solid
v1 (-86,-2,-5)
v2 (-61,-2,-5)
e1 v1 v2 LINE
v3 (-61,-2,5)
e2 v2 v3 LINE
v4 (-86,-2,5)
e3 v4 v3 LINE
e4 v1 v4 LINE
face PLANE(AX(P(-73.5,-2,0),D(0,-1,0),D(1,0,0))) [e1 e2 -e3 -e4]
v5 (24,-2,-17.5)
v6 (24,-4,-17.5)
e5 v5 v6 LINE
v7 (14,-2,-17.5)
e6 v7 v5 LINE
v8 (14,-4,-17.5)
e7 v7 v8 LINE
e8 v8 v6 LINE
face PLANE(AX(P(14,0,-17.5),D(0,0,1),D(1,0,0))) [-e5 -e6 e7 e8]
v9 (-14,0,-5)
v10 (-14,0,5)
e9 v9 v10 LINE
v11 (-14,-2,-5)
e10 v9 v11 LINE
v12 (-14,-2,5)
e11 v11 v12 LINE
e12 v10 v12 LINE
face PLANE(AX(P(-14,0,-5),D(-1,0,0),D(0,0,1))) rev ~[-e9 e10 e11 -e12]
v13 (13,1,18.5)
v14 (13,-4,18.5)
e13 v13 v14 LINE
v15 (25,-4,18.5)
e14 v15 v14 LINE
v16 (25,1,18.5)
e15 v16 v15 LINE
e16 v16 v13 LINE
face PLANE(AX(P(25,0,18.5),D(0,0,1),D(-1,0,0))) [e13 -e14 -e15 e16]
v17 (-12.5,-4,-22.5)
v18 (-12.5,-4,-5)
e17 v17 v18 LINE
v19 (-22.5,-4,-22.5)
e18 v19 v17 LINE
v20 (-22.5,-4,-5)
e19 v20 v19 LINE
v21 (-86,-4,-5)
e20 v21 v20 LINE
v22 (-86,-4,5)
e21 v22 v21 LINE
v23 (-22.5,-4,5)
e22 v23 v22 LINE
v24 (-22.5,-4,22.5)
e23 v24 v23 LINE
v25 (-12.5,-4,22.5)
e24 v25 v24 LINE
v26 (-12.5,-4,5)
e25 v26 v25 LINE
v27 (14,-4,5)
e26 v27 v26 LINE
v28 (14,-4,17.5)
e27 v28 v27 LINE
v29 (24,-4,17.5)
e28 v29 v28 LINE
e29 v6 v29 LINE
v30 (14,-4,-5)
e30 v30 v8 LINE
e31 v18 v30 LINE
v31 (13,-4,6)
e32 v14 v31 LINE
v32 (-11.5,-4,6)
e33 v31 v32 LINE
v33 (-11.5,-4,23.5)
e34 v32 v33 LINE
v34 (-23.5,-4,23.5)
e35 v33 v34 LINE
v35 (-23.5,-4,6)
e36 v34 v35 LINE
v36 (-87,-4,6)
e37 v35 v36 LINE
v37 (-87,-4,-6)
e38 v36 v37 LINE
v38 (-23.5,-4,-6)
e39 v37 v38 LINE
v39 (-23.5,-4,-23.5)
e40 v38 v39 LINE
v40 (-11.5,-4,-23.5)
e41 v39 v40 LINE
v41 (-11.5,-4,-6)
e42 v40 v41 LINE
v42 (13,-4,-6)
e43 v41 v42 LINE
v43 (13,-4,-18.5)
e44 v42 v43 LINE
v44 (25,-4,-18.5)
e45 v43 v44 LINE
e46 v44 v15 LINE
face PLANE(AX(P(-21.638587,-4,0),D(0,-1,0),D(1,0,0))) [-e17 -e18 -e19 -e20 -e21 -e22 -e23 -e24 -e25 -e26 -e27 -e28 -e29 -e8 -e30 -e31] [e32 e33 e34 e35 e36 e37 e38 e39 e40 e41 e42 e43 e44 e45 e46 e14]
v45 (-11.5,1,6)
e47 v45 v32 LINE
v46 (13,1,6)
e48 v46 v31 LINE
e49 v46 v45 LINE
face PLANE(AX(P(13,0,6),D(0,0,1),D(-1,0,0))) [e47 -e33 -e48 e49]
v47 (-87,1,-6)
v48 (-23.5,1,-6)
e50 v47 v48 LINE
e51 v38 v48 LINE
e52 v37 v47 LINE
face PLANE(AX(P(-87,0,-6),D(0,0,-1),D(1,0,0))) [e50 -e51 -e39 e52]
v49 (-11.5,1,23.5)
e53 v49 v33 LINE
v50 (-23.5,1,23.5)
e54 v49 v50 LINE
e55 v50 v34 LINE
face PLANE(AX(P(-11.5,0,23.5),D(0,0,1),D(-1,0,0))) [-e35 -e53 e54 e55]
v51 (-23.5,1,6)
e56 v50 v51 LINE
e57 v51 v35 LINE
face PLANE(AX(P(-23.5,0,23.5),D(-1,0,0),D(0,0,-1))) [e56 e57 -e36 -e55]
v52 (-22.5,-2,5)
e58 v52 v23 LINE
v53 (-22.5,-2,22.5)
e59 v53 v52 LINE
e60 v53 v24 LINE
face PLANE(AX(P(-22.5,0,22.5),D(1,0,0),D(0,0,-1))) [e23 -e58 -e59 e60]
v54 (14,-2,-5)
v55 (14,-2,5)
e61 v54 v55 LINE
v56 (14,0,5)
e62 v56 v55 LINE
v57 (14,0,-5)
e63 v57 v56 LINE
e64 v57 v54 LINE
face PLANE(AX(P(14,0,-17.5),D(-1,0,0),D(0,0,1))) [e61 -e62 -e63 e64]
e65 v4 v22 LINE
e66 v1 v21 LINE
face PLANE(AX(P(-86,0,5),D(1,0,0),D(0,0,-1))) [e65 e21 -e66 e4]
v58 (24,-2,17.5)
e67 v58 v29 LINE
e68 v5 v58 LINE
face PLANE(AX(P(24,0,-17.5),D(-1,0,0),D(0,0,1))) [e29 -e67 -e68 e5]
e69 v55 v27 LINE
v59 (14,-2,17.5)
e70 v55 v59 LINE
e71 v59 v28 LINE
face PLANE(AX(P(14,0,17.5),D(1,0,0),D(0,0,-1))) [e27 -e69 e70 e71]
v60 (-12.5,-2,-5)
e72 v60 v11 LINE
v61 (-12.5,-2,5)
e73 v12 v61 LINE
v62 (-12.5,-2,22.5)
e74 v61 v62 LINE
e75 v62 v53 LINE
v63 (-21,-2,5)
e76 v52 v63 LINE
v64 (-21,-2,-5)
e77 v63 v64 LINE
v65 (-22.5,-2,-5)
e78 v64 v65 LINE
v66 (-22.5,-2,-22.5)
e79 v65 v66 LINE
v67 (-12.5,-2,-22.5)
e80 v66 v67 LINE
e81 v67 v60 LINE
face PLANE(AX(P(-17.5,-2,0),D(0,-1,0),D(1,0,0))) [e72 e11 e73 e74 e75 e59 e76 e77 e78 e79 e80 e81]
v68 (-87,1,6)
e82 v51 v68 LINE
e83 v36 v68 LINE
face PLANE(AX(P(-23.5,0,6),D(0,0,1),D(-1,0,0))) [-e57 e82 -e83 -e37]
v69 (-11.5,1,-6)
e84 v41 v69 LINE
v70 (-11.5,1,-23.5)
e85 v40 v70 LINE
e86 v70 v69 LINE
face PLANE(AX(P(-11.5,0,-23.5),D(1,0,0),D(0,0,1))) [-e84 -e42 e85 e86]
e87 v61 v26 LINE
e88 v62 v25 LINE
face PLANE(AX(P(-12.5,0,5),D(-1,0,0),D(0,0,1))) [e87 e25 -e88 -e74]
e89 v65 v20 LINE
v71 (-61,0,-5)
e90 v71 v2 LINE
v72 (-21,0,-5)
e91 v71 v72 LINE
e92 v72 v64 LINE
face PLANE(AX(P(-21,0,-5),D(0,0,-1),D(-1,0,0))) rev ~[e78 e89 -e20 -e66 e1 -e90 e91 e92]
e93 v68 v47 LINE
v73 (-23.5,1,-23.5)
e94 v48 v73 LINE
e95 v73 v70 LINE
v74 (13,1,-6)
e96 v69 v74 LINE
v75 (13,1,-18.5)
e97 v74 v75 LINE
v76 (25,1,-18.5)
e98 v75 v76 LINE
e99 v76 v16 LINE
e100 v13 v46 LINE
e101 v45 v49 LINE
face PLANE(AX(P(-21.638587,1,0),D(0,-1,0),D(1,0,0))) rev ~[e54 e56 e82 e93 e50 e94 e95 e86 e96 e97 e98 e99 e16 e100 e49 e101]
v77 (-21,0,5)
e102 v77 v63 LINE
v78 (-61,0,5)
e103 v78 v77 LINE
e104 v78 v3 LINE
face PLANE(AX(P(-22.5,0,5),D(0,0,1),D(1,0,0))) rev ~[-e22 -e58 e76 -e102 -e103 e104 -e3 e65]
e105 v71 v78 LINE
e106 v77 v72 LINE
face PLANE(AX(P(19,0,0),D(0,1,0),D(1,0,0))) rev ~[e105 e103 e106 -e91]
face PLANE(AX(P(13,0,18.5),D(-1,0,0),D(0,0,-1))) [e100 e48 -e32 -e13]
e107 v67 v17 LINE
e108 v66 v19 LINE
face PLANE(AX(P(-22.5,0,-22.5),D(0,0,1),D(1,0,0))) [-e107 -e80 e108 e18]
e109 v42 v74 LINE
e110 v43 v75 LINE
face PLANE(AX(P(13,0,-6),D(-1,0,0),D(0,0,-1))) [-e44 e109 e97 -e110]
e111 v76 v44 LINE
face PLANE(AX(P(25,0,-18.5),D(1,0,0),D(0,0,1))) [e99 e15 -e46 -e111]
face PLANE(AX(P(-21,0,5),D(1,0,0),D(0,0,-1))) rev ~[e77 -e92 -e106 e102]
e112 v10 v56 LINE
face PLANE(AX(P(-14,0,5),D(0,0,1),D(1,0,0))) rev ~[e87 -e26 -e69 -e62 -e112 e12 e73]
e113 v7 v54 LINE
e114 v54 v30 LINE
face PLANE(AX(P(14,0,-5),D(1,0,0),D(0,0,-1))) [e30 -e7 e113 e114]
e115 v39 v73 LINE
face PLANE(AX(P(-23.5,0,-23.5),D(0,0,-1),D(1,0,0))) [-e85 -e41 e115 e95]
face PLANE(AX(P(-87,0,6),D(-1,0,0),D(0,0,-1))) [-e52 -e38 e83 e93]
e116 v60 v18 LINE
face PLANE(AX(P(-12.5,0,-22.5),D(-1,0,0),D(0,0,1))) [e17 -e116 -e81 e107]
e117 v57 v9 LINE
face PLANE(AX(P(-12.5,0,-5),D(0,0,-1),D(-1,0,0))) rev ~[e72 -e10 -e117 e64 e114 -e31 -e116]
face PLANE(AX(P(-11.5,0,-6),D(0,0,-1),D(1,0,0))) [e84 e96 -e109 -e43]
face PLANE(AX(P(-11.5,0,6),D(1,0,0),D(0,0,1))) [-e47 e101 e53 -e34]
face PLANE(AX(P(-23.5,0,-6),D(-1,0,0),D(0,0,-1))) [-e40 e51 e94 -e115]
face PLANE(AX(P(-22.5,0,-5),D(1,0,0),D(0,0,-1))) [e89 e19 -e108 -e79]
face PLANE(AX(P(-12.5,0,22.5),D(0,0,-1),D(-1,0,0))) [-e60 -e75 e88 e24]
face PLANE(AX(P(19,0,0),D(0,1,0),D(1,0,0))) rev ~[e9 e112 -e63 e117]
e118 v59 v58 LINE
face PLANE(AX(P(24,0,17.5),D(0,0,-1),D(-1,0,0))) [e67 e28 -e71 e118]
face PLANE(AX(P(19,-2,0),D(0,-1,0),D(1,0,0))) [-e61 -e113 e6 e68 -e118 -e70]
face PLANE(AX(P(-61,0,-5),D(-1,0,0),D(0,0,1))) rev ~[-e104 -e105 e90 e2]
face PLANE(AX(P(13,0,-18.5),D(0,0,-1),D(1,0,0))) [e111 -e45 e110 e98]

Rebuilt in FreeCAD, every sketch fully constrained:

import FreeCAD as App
import Part
import Sketcher
from FreeCAD import Vector


def add_polygon(sketch, points):
    """Adds a closed chain of lines whose ends are joined by coincident constraints."""
    first, n = sketch.GeometryCount, len(points)
    for a, b in zip(points, points[1:] + points[:1]):
        sketch.addGeometry(Part.LineSegment(App.Vector(*a, 0), App.Vector(*b, 0)), False)
    for i in range(n):
        sketch.addConstraint(Sketcher.Constraint("Coincident", first + i, 2, first + (i + 1) % n, 1))

doc = App.newDocument("Part")
params = doc.addObject("Spreadsheet::Sheet", "Params")
for row, (alias, value) in enumerate([
    ("sketch1_width", "10 mm"),
    ("sketch1_height", "35 mm"),
    ("sketch1_width2", "26.5 mm"),
    ("sketch1_width3", "63.5 mm"),
    ("sketch1_height2", "17.5 mm"),
    ("pad1_length", "1 mm"),
    ("sketch2_width", "12 mm"),
    ("sketch2_width2", "10 mm"),
    ("sketch2_height", "37 mm"),
    ("sketch2_width3", "24.5 mm"),
    ("sketch2_width4", "63.5 mm"),
    ("pad2_length", "4 mm"),
    ("pad2_length2", "1 mm"),
    ("sketch3_width", "10 mm"),
    ("sketch3_width2", "25 mm"),
    ("sketch3_height", "35 mm"),
    ("sketch3_width3", "1.5 mm"),
    ("sketch3_height2", "17.5 mm"),
    ("pad3_length", "2 mm"),
], start=1):
    params.set(f"A{row}", alias)
    params.set(f"B{row}", "=" + value)
    params.setAlias(f"B{row}", alias)

body = doc.addObject("PartDesign::Body", "Body")

# Sketch on XZ plane
sketch1 = doc.addObject("Sketcher::SketchObject", "Sketch")
body.addObject(sketch1)
sketch1.AttachmentSupport = (doc.XZ_Plane, [""])
sketch1.MapMode = "FlatFace"
add_polygon(sketch1, [(14, 5), (14, 18), (24, 18), (24, -18), (14, -18), (14, -5), (-12, -5), (-12, -22), (-22, -22), (-22, -5), (-86, -5), (-86, 5), (-22, 5), (-22, 22), (-12, 22), (-12, 5)])  # lines 0-15
sketch1.addConstraint(Sketcher.Constraint("Vertical", 0))
sketch1.addConstraint(Sketcher.Constraint("Horizontal", 1))
sketch1.addConstraint(Sketcher.Constraint("Vertical", 2))
sketch1.addConstraint(Sketcher.Constraint("Horizontal", 3))
sketch1.addConstraint(Sketcher.Constraint("Vertical", 4))
sketch1.addConstraint(Sketcher.Constraint("Horizontal", 5))
sketch1.addConstraint(Sketcher.Constraint("Vertical", 6))
sketch1.addConstraint(Sketcher.Constraint("Horizontal", 7))
sketch1.addConstraint(Sketcher.Constraint("Vertical", 8))
sketch1.addConstraint(Sketcher.Constraint("Horizontal", 9))
sketch1.addConstraint(Sketcher.Constraint("Vertical", 10))
sketch1.addConstraint(Sketcher.Constraint("Horizontal", 11))
sketch1.addConstraint(Sketcher.Constraint("Vertical", 12))
sketch1.addConstraint(Sketcher.Constraint("Horizontal", 13))
sketch1.addConstraint(Sketcher.Constraint("Vertical", 14))
sketch1.addConstraint(Sketcher.Constraint("Horizontal", 15))
sketch1.addConstraint(Sketcher.Constraint("Symmetric", 0, 2, 3, 2, -1))
sketch1.addConstraint(Sketcher.Constraint("Symmetric", 8, 2, 11, 2, -1))
sketch1.addConstraint(Sketcher.Constraint("Symmetric", 6, 2, 13, 2, -1))
sketch1.addConstraint(Sketcher.Constraint("Horizontal", 5, 2, 8, 2))
sketch1.addConstraint(Sketcher.Constraint("Horizontal", 11, 2, 14, 2))
sketch1.addConstraint(Sketcher.Constraint("Equal", 3, 7))
sketch1.addConstraint(Sketcher.Constraint("Equal", 13, 10))
sketch1.addConstraint(Sketcher.Constraint("DistanceX", 1, 1, 1, 2, 10.0))
sketch1.addConstraint(Sketcher.Constraint("DistanceY", 2, 2, 2, 1, 35.0))
sketch1.addConstraint(Sketcher.Constraint("DistanceX", 5, 2, 5, 1, 26.5))
sketch1.addConstraint(Sketcher.Constraint("DistanceX", 9, 2, 9, 1, 63.5))
sketch1.addConstraint(Sketcher.Constraint("DistanceY", 6, 2, 6, 1, 17.5))
sketch1.addConstraint(Sketcher.Constraint("DistanceX", -1, 1, 0, 2, 14.0))
sketch1.setExpression("Constraints[39]", "Params.sketch1_width")
sketch1.setExpression("Constraints[40]", "Params.sketch1_height")
sketch1.setExpression("Constraints[41]", "Params.sketch1_width2")
sketch1.setExpression("Constraints[42]", "Params.sketch1_width3")
sketch1.setExpression("Constraints[43]", "Params.sketch1_height2")
pad1 = doc.addObject("PartDesign::Pad", "Pad")
body.addObject(pad1)
pad1.Profile = sketch1
pad1.setExpression("Length", "Params.pad1_length")
pad1.Reversed = True

# Sketch on XZ plane
sketch2 = doc.addObject("Sketcher::SketchObject", "Sketch001")
body.addObject(sketch2)
sketch2.AttachmentSupport = (doc.XZ_Plane, [""])
sketch2.MapMode = "FlatFace"
add_polygon(sketch2, [(13, -18), (25, -18), (25, 18), (13, 18), (13, 6), (-12, 6), (-12, 24), (-24, 24), (-24, 6), (-87, 6), (-87, -6), (-24, -6), (-24, -24), (-12, -24), (-12, -6), (13, -6)])  # lines 0-15
add_polygon(sketch2, [(24, -18), (14, -18), (14, -5), (-12, -5), (-12, -22), (-22, -22), (-22, -5), (-86, -5), (-86, 5), (-22, 5), (-22, 22), (-12, 22), (-12, 5), (14, 5), (14, 18), (24, 18)])  # lines 16-31
sketch2.addConstraint(Sketcher.Constraint("Horizontal", 0))
sketch2.addConstraint(Sketcher.Constraint("Vertical", 1))
sketch2.addConstraint(Sketcher.Constraint("Horizontal", 2))
sketch2.addConstraint(Sketcher.Constraint("Vertical", 3))
sketch2.addConstraint(Sketcher.Constraint("Horizontal", 4))
sketch2.addConstraint(Sketcher.Constraint("Vertical", 5))
sketch2.addConstraint(Sketcher.Constraint("Horizontal", 6))
sketch2.addConstraint(Sketcher.Constraint("Vertical", 7))
sketch2.addConstraint(Sketcher.Constraint("Horizontal", 8))
sketch2.addConstraint(Sketcher.Constraint("Vertical", 9))
sketch2.addConstraint(Sketcher.Constraint("Horizontal", 10))
sketch2.addConstraint(Sketcher.Constraint("Vertical", 11))
sketch2.addConstraint(Sketcher.Constraint("Horizontal", 12))
sketch2.addConstraint(Sketcher.Constraint("Vertical", 13))
sketch2.addConstraint(Sketcher.Constraint("Horizontal", 14))
sketch2.addConstraint(Sketcher.Constraint("Vertical", 15))
sketch2.addConstraint(Sketcher.Constraint("Horizontal", 16))
sketch2.addConstraint(Sketcher.Constraint("Vertical", 17))
sketch2.addConstraint(Sketcher.Constraint("Horizontal", 18))
sketch2.addConstraint(Sketcher.Constraint("Vertical", 19))
sketch2.addConstraint(Sketcher.Constraint("Horizontal", 20))
sketch2.addConstraint(Sketcher.Constraint("Vertical", 21))
sketch2.addConstraint(Sketcher.Constraint("Horizontal", 22))
sketch2.addConstraint(Sketcher.Constraint("Vertical", 23))
sketch2.addConstraint(Sketcher.Constraint("Horizontal", 24))
sketch2.addConstraint(Sketcher.Constraint("Vertical", 25))
sketch2.addConstraint(Sketcher.Constraint("Horizontal", 26))
sketch2.addConstraint(Sketcher.Constraint("Vertical", 27))
sketch2.addConstraint(Sketcher.Constraint("Horizontal", 28))
sketch2.addConstraint(Sketcher.Constraint("Vertical", 29))
sketch2.addConstraint(Sketcher.Constraint("Horizontal", 30))
sketch2.addConstraint(Sketcher.Constraint("Vertical", 31))
sketch2.addConstraint(Sketcher.Constraint("Symmetric", 7, 2, 10, 2, -1))
sketch2.addConstraint(Sketcher.Constraint("Symmetric", 5, 2, 12, 2, -1))
sketch2.addConstraint(Sketcher.Constraint("Symmetric", 3, 2, 14, 2, -1))
sketch2.addConstraint(Sketcher.Constraint("Symmetric", 21, 2, 24, 2, -1))
sketch2.addConstraint(Sketcher.Constraint("Symmetric", 19, 2, 26, 2, -1))
sketch2.addConstraint(Sketcher.Constraint("Symmetric", 17, 2, 28, 2, -1))
sketch2.addConstraint(Sketcher.Constraint("Horizontal", 4, 2, 7, 2))
sketch2.addConstraint(Sketcher.Constraint("Horizontal", 18, 2, 21, 2))
sketch2.addConstraint(Sketcher.Constraint("Equal", 2, 6))
sketch2.addConstraint(Sketcher.Constraint("Equal", 16, 20))
sketch2.addConstraint(Sketcher.Constraint("Equal", 10, 22))
sketch2.addConstraint(Sketcher.Constraint("Equal", 12, 9))
sketch2.addConstraint(Sketcher.Constraint("Equal", 3, 15))
sketch2.addConstraint(Sketcher.Constraint("Equal", 15, 17))
sketch2.addConstraint(Sketcher.Constraint("Equal", 13, 19))
sketch2.addConstraint(Sketcher.Constraint("Equal", 30, 23))
sketch2.addConstraint(Sketcher.Constraint("Equal", 17, 29))
sketch2.addConstraint(Sketcher.Constraint("DistanceX", 0, 1, 0, 2, 12.0))
sketch2.addConstraint(Sketcher.Constraint("DistanceX", 16, 2, 16, 1, 10.0))
sketch2.addConstraint(Sketcher.Constraint("DistanceY", 1, 1, 1, 2, 37.0))
sketch2.addConstraint(Sketcher.Constraint("DistanceX", 4, 2, 4, 1, 24.5))
sketch2.addConstraint(Sketcher.Constraint("DistanceX", 8, 2, 8, 1, 63.5))
sketch2.addConstraint(Sketcher.Constraint("DistanceX", 18, 2, 18, 1, 26.5))
sketch2.addConstraint(Sketcher.Constraint("DistanceY", 5, 1, 5, 2, 17.5))
sketch2.addConstraint(Sketcher.Constraint("DistanceX", -1, 1, 0, 2, 25.0))
sketch2.addConstraint(Sketcher.Constraint("DistanceX", -1, 1, 16, 2, 14.0))
sketch2.setExpression("Constraints[81]", "Params.sketch2_width")
sketch2.setExpression("Constraints[82]", "Params.sketch2_width2")
sketch2.setExpression("Constraints[83]", "Params.sketch2_height")
sketch2.setExpression("Constraints[84]", "Params.sketch2_width3")
sketch2.setExpression("Constraints[85]", "Params.sketch2_width4")
pad2 = doc.addObject("PartDesign::Pad", "Pad001")
body.addObject(pad2)
pad2.Profile = sketch2
pad2.Type = "TwoLengths"
pad2.setExpression("Length", "Params.pad2_length")
pad2.setExpression("Length2", "Params.pad2_length2")

# Sketch on XZ plane
sketch3 = doc.addObject("Sketcher::SketchObject", "Sketch002")
body.addObject(sketch3)
sketch3.AttachmentSupport = (doc.XZ_Plane, [""])
sketch3.MapMode = "FlatFace"
add_polygon(sketch3, [(-22.5, 22.5), (-22.5, 5), (-21, 5), (-21, -5), (-22.5, -5), (-22.5, -22.5), (-12.5, -22.5), (-12.5, -5), (-14, -5), (-14, 5), (-12.5, 5), (-12.5, 22.5)])  # lines 0-11
add_polygon(sketch3, [(-86, 5), (-86, -5), (-61, -5), (-61, 5)])  # lines 12-15
add_polygon(sketch3, [(14, 17.5), (14, -17.5), (24, -17.5), (24, 17.5)])  # lines 16-19
sketch3.addConstraint(Sketcher.Constraint("Vertical", 0))
sketch3.addConstraint(Sketcher.Constraint("Horizontal", 1))
sketch3.addConstraint(Sketcher.Constraint("Vertical", 2))
sketch3.addConstraint(Sketcher.Constraint("Horizontal", 3))
sketch3.addConstraint(Sketcher.Constraint("Vertical", 4))
sketch3.addConstraint(Sketcher.Constraint("Horizontal", 5))
sketch3.addConstraint(Sketcher.Constraint("Vertical", 6))
sketch3.addConstraint(Sketcher.Constraint("Horizontal", 7))
sketch3.addConstraint(Sketcher.Constraint("Vertical", 8))
sketch3.addConstraint(Sketcher.Constraint("Horizontal", 9))
sketch3.addConstraint(Sketcher.Constraint("Vertical", 10))
sketch3.addConstraint(Sketcher.Constraint("Horizontal", 11))
sketch3.addConstraint(Sketcher.Constraint("Vertical", 12))
sketch3.addConstraint(Sketcher.Constraint("Horizontal", 13))
sketch3.addConstraint(Sketcher.Constraint("Vertical", 14))
sketch3.addConstraint(Sketcher.Constraint("Horizontal", 15))
sketch3.addConstraint(Sketcher.Constraint("Vertical", 16))
sketch3.addConstraint(Sketcher.Constraint("Horizontal", 17))
sketch3.addConstraint(Sketcher.Constraint("Vertical", 18))
sketch3.addConstraint(Sketcher.Constraint("Horizontal", 19))
sketch3.addConstraint(Sketcher.Constraint("Symmetric", 0, 2, 3, 2, -1))
sketch3.addConstraint(Sketcher.Constraint("Symmetric", 6, 2, 9, 2, -1))
sketch3.addConstraint(Sketcher.Constraint("Horizontal", 3, 2, 6, 2))
sketch3.addConstraint(Sketcher.Constraint("Horizontal", 7, 2, 12, 2))
sketch3.addConstraint(Sketcher.Constraint("Horizontal", 9, 2, 14, 2))
sketch3.addConstraint(Sketcher.Constraint("Equal", 3, 7))
sketch3.addConstraint(Sketcher.Constraint("Equal", 11, 17))
sketch3.addConstraint(Sketcher.Constraint("Equal", 19, 2))
sketch3.addConstraint(Sketcher.Constraint("Equal", 0, 4))
sketch3.addConstraint(Sketcher.Constraint("DistanceX", 5, 1, 5, 2, 10.0))
sketch3.addConstraint(Sketcher.Constraint("DistanceX", 13, 1, 13, 2, 25.0))
sketch3.addConstraint(Sketcher.Constraint("DistanceY", 16, 2, 16, 1, 35.0))
sketch3.addConstraint(Sketcher.Constraint("DistanceX", 1, 1, 1, 2, 1.5))
sketch3.addConstraint(Sketcher.Constraint("DistanceY", 0, 2, 0, 1, 17.5))
sketch3.addConstraint(Sketcher.Constraint("DistanceX", 1, 2, -1, 1, 21.0))
sketch3.addConstraint(Sketcher.Constraint("DistanceX", 12, 2, -1, 1, 86.0))
sketch3.addConstraint(Sketcher.Constraint("DistanceX", -1, 1, 16, 2, 14.0))
sketch3.addConstraint(Sketcher.Constraint("DistanceY", 5, 2, 16, 2, 5.0))
sketch3.setExpression("Constraints[49]", "Params.sketch3_width")
sketch3.setExpression("Constraints[50]", "Params.sketch3_width2")
sketch3.setExpression("Constraints[51]", "Params.sketch3_height")
sketch3.setExpression("Constraints[52]", "Params.sketch3_width3")
sketch3.setExpression("Constraints[53]", "Params.sketch3_height2")
pad3 = doc.addObject("PartDesign::Pad", "Pad002")
body.addObject(pad3)
pad3.Profile = sketch3
pad3.setExpression("Length", "Params.pad3_length")

doc.recompute()
